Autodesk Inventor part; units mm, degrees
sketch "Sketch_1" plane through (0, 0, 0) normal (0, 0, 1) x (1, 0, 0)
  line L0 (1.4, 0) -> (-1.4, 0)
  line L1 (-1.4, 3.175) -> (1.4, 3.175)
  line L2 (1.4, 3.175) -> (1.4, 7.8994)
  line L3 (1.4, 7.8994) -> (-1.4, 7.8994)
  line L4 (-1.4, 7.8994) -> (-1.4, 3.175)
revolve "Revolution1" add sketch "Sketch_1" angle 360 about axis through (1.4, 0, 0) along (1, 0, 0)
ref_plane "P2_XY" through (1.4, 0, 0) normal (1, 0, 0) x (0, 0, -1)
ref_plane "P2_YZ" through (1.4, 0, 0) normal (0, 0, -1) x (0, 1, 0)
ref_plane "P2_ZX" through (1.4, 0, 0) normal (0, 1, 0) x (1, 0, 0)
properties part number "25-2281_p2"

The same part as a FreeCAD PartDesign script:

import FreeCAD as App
import Part
import Sketcher
Q = App.Units.Quantity


def add_polygon(sketch, points):
    """Adds a closed chain of lines whose ends are joined by coincident constraints."""
    first, n = sketch.GeometryCount, len(points)
    for a, b in zip(points, points[1:] + points[:1]):
        sketch.addGeometry(Part.LineSegment(App.Vector(*a, 0), App.Vector(*b, 0)), False)
    for i in range(n):
        sketch.addConstraint(Sketcher.Constraint("Coincident", first + i, 2, first + (i + 1) % n, 1))

doc = App.newDocument("Part")
body = doc.addObject("PartDesign::Body", "Body")

sketch1 = body.newObject("Sketcher::SketchObject", "Sketch")
sketch1.AttachmentSupport = (doc.getObject("XY_Plane"), [""])
sketch1.MapMode = "FlatFace"
add_polygon(sketch1, [(-1.4, 7.9), (-1.4, 3.2), (1.4, 3.2), (1.4, 7.9)])
sketch1.addConstraint([
    Sketcher.Constraint("Vertical", 0),
    Sketcher.Constraint("Horizontal", 1),
    Sketcher.Constraint("Vertical", 2),
    Sketcher.Constraint("Horizontal", 3),
    Sketcher.Constraint("DistanceX", 1, 1, 1, 2, Q("2.8 mm")),
    Sketcher.Constraint("DistanceX", 0, 2, -1, 1, Q("1.4 mm")),
    Sketcher.Constraint("DistanceY", 0, 2, 0, 1, Q("4.7244 mm")),
    Sketcher.Constraint("DistanceY", -1, 1, 0, 2, Q("3.175 mm")),
])
revolution = body.newObject("PartDesign::Revolution", "Revolution")
revolution.Profile = sketch1
revolution.ReferenceAxis = (sketch1, ["H_Axis"])
revolution.Angle = 360

doc.recompute()
